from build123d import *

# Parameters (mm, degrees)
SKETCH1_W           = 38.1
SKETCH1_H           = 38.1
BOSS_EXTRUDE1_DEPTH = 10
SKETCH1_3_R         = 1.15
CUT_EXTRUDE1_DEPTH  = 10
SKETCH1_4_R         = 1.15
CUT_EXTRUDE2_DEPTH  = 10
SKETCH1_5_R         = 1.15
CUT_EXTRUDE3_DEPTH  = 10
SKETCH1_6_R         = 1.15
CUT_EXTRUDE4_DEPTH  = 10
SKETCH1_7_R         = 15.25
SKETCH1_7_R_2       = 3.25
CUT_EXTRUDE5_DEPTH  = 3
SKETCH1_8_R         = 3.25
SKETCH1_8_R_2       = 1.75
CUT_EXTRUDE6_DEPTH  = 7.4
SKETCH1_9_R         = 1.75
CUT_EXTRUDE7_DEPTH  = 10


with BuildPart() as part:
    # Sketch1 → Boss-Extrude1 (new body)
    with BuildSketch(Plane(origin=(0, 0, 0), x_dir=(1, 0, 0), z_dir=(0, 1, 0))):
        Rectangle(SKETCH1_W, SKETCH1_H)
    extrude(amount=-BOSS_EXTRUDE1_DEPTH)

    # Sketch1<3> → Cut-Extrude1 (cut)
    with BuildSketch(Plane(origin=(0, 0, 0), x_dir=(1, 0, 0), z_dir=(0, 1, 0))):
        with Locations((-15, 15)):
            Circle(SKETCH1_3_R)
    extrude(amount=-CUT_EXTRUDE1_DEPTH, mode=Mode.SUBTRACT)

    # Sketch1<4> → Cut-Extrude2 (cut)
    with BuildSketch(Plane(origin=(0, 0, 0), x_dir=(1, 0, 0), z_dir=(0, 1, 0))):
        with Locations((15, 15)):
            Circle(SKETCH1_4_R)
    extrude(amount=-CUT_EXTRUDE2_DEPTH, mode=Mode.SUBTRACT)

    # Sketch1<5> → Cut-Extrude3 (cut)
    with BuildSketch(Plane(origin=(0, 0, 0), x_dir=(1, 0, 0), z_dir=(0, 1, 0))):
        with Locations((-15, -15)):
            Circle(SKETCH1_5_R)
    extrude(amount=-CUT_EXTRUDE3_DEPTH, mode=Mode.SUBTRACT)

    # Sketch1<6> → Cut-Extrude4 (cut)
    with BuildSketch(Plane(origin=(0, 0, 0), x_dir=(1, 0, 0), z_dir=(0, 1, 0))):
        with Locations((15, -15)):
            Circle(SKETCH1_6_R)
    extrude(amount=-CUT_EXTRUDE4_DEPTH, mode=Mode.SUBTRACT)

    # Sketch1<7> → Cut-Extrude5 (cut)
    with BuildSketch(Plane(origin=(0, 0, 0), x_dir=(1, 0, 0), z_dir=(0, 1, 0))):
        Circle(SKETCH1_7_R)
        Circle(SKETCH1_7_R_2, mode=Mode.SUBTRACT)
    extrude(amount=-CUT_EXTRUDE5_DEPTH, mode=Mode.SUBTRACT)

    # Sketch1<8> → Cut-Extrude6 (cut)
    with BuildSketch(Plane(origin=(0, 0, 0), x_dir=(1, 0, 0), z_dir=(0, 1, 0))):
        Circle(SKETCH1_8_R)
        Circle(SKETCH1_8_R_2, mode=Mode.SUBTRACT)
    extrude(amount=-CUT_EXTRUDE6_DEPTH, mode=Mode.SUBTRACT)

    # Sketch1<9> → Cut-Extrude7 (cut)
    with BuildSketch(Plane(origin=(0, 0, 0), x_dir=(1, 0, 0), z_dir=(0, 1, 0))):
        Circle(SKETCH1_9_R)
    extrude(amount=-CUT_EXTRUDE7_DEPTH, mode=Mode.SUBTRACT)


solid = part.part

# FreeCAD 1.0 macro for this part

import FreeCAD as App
import Part
import Sketcher
from FreeCAD import Vector
Q = App.Units.Quantity

doc = App.newDocument("Part")
body = doc.addObject("PartDesign::Body", "Body")

# Sketch on XZ plane
sketch1 = body.newObject("Sketcher::SketchObject", "Sketch")
sketch1.AttachmentSupport = (doc.getObject("XZ_Plane"), [""])
sketch1.MapMode = "FlatFace"
sketch1.addGeometry([
    Part.LineSegment(Vector(-19, -19, 0), Vector(-19, 19, 0)),
    Part.LineSegment(Vector(-19, 19, 0), Vector(19, 19, 0)),
    Part.LineSegment(Vector(19, 19, 0), Vector(19, -19, 0)),
    Part.LineSegment(Vector(19, -19, 0), Vector(-19, -19, 0)),
], False)
sketch1.addConstraint([
    Sketcher.Constraint("Coincident", 0, 2, 1, 1),
    Sketcher.Constraint("Coincident", 1, 2, 2, 1),
    Sketcher.Constraint("Coincident", 2, 2, 3, 1),
    Sketcher.Constraint("Coincident", 3, 2, 0, 1),
    Sketcher.Constraint("Vertical", 0),
    Sketcher.Constraint("Horizontal", 1),
    Sketcher.Constraint("Vertical", 2),
    Sketcher.Constraint("Horizontal", 3),
    Sketcher.Constraint("Symmetric", 0, 2, 2, 2, -1, 1),
    Sketcher.Constraint("Equal", 3, 0),
    Sketcher.Constraint("DistanceX", 1, 1, 1, 2, Q("38.1 mm")),
])
pad1 = body.newObject("PartDesign::Pad", "Pad")
pad1.Profile = sketch1
pad1.Length = 10

# Sketch on XZ plane
sketch2 = body.newObject("Sketcher::SketchObject", "Sketch001")
sketch2.AttachmentSupport = (doc.getObject("XZ_Plane"), [""])
sketch2.MapMode = "FlatFace"
sketch2.addGeometry(Part.Circle(Vector(-15, -15, 0), Vector(0, 0, 1), 1.1), False)
sketch2.addConstraint([
    Sketcher.Constraint("Diameter", 0, Q("2.3 mm")),
    Sketcher.Constraint("DistanceX", 0, 3, -1, 1, Q("15 mm")),
    Sketcher.Constraint("DistanceY", 0, 3, -1, 1, Q("15 mm")),
])
pocket1 = body.newObject("PartDesign::Pocket", "Pocket")
pocket1.Profile = sketch2
pocket1.Length = 10
pocket1.Reversed = True

# Sketch on XZ plane
sketch3 = body.newObject("Sketcher::SketchObject", "Sketch002")
sketch3.AttachmentSupport = (doc.getObject("XZ_Plane"), [""])
sketch3.MapMode = "FlatFace"
sketch3.addGeometry(Part.Circle(Vector(15, -15, 0), Vector(0, 0, 1), 1.1), False)
sketch3.addConstraint([
    Sketcher.Constraint("Diameter", 0, Q("2.3 mm")),
    Sketcher.Constraint("DistanceX", -1, 1, 0, 3, Q("15 mm")),
    Sketcher.Constraint("DistanceY", 0, 3, -1, 1, Q("15 mm")),
])
pocket2 = body.newObject("PartDesign::Pocket", "Pocket001")
pocket2.Profile = sketch3
pocket2.Length = 10
pocket2.Reversed = True

# Sketch on XZ plane
sketch4 = body.newObject("Sketcher::SketchObject", "Sketch003")
sketch4.AttachmentSupport = (doc.getObject("XZ_Plane"), [""])
sketch4.MapMode = "FlatFace"
sketch4.addGeometry(Part.Circle(Vector(-15, 15, 0), Vector(0, 0, 1), 1.1), False)
sketch4.addConstraint([
    Sketcher.Constraint("Diameter", 0, Q("2.3 mm")),
    Sketcher.Constraint("DistanceX", 0, 3, -1, 1, Q("15 mm")),
    Sketcher.Constraint("DistanceY", -1, 1, 0, 3, Q("15 mm")),
])
pocket3 = body.newObject("PartDesign::Pocket", "Pocket002")
pocket3.Profile = sketch4
pocket3.Length = 10
pocket3.Reversed = True

# Sketch on XZ plane
sketch5 = body.newObject("Sketcher::SketchObject", "Sketch004")
sketch5.AttachmentSupport = (doc.getObject("XZ_Plane"), [""])
sketch5.MapMode = "FlatFace"
sketch5.addGeometry(Part.Circle(Vector(15, 15, 0), Vector(0, 0, 1), 1.1), False)
sketch5.addConstraint([
    Sketcher.Constraint("Diameter", 0, Q("2.3 mm")),
    Sketcher.Constraint("DistanceX", -1, 1, 0, 3, Q("15 mm")),
    Sketcher.Constraint("DistanceY", -1, 1, 0, 3, Q("15 mm")),
])
pocket4 = body.newObject("PartDesign::Pocket", "Pocket003")
pocket4.Profile = sketch5
pocket4.Length = 10
pocket4.Reversed = True

# Sketch on XZ plane
sketch6 = body.newObject("Sketcher::SketchObject", "Sketch005")
sketch6.AttachmentSupport = (doc.getObject("XZ_Plane"), [""])
sketch6.MapMode = "FlatFace"
sketch6.addGeometry([
    Part.Circle(Vector(0, 0, 0), Vector(0, 0, 1), 15.2),
    Part.Circle(Vector(0, 0, 0), Vector(0, 0, 1), 3.2),
], False)
sketch6.addConstraint([
    Sketcher.Constraint("Coincident", 0, 3, -1, 1),
    Sketcher.Constraint("Coincident", 1, 3, -1, 1),
    Sketcher.Constraint("Diameter", 0, Q("30.5 mm")),
    Sketcher.Constraint("Diameter", 1, Q("6.5 mm")),
])
pocket5 = body.newObject("PartDesign::Pocket", "Pocket004")
pocket5.Profile = sketch6
pocket5.Length = 3
pocket5.Reversed = True

# Sketch on XZ plane
sketch7 = body.newObject("Sketcher::SketchObject", "Sketch006")
sketch7.AttachmentSupport = (doc.getObject("XZ_Plane"), [""])
sketch7.MapMode = "FlatFace"
sketch7.addGeometry([
    Part.Circle(Vector(0, 0, 0), Vector(0, 0, 1), 3.2),
    Part.Circle(Vector(0, 0, 0), Vector(0, 0, 1), 1.8),
], False)
sketch7.addConstraint([
    Sketcher.Constraint("Coincident", 0, 3, -1, 1),
    Sketcher.Constraint("Coincident", 1, 3, -1, 1),
    Sketcher.Constraint("Diameter", 0, Q("6.5 mm")),
    Sketcher.Constraint("Diameter", 1, Q("3.5 mm")),
])
pocket6 = body.newObject("PartDesign::Pocket", "Pocket005")
pocket6.Profile = sketch7
pocket6.Length = 7.4
pocket6.Reversed = True

# Sketch on XZ plane
sketch8 = body.newObject("Sketcher::SketchObject", "Sketch007")
sketch8.AttachmentSupport = (doc.getObject("XZ_Plane"), [""])
sketch8.MapMode = "FlatFace"
sketch8.addGeometry(Part.Circle(Vector(0, 0, 0), Vector(0, 0, 1), 1.8), False)
sketch8.addConstraint([
    Sketcher.Constraint("Coincident", 0, 3, -1, 1),
    Sketcher.Constraint("Diameter", 0, Q("3.5 mm")),
])
pocket7 = body.newObject("PartDesign::Pocket", "Pocket006")
pocket7.Profile = sketch8
pocket7.Length = 10
pocket7.Reversed = True

doc.recompute()
